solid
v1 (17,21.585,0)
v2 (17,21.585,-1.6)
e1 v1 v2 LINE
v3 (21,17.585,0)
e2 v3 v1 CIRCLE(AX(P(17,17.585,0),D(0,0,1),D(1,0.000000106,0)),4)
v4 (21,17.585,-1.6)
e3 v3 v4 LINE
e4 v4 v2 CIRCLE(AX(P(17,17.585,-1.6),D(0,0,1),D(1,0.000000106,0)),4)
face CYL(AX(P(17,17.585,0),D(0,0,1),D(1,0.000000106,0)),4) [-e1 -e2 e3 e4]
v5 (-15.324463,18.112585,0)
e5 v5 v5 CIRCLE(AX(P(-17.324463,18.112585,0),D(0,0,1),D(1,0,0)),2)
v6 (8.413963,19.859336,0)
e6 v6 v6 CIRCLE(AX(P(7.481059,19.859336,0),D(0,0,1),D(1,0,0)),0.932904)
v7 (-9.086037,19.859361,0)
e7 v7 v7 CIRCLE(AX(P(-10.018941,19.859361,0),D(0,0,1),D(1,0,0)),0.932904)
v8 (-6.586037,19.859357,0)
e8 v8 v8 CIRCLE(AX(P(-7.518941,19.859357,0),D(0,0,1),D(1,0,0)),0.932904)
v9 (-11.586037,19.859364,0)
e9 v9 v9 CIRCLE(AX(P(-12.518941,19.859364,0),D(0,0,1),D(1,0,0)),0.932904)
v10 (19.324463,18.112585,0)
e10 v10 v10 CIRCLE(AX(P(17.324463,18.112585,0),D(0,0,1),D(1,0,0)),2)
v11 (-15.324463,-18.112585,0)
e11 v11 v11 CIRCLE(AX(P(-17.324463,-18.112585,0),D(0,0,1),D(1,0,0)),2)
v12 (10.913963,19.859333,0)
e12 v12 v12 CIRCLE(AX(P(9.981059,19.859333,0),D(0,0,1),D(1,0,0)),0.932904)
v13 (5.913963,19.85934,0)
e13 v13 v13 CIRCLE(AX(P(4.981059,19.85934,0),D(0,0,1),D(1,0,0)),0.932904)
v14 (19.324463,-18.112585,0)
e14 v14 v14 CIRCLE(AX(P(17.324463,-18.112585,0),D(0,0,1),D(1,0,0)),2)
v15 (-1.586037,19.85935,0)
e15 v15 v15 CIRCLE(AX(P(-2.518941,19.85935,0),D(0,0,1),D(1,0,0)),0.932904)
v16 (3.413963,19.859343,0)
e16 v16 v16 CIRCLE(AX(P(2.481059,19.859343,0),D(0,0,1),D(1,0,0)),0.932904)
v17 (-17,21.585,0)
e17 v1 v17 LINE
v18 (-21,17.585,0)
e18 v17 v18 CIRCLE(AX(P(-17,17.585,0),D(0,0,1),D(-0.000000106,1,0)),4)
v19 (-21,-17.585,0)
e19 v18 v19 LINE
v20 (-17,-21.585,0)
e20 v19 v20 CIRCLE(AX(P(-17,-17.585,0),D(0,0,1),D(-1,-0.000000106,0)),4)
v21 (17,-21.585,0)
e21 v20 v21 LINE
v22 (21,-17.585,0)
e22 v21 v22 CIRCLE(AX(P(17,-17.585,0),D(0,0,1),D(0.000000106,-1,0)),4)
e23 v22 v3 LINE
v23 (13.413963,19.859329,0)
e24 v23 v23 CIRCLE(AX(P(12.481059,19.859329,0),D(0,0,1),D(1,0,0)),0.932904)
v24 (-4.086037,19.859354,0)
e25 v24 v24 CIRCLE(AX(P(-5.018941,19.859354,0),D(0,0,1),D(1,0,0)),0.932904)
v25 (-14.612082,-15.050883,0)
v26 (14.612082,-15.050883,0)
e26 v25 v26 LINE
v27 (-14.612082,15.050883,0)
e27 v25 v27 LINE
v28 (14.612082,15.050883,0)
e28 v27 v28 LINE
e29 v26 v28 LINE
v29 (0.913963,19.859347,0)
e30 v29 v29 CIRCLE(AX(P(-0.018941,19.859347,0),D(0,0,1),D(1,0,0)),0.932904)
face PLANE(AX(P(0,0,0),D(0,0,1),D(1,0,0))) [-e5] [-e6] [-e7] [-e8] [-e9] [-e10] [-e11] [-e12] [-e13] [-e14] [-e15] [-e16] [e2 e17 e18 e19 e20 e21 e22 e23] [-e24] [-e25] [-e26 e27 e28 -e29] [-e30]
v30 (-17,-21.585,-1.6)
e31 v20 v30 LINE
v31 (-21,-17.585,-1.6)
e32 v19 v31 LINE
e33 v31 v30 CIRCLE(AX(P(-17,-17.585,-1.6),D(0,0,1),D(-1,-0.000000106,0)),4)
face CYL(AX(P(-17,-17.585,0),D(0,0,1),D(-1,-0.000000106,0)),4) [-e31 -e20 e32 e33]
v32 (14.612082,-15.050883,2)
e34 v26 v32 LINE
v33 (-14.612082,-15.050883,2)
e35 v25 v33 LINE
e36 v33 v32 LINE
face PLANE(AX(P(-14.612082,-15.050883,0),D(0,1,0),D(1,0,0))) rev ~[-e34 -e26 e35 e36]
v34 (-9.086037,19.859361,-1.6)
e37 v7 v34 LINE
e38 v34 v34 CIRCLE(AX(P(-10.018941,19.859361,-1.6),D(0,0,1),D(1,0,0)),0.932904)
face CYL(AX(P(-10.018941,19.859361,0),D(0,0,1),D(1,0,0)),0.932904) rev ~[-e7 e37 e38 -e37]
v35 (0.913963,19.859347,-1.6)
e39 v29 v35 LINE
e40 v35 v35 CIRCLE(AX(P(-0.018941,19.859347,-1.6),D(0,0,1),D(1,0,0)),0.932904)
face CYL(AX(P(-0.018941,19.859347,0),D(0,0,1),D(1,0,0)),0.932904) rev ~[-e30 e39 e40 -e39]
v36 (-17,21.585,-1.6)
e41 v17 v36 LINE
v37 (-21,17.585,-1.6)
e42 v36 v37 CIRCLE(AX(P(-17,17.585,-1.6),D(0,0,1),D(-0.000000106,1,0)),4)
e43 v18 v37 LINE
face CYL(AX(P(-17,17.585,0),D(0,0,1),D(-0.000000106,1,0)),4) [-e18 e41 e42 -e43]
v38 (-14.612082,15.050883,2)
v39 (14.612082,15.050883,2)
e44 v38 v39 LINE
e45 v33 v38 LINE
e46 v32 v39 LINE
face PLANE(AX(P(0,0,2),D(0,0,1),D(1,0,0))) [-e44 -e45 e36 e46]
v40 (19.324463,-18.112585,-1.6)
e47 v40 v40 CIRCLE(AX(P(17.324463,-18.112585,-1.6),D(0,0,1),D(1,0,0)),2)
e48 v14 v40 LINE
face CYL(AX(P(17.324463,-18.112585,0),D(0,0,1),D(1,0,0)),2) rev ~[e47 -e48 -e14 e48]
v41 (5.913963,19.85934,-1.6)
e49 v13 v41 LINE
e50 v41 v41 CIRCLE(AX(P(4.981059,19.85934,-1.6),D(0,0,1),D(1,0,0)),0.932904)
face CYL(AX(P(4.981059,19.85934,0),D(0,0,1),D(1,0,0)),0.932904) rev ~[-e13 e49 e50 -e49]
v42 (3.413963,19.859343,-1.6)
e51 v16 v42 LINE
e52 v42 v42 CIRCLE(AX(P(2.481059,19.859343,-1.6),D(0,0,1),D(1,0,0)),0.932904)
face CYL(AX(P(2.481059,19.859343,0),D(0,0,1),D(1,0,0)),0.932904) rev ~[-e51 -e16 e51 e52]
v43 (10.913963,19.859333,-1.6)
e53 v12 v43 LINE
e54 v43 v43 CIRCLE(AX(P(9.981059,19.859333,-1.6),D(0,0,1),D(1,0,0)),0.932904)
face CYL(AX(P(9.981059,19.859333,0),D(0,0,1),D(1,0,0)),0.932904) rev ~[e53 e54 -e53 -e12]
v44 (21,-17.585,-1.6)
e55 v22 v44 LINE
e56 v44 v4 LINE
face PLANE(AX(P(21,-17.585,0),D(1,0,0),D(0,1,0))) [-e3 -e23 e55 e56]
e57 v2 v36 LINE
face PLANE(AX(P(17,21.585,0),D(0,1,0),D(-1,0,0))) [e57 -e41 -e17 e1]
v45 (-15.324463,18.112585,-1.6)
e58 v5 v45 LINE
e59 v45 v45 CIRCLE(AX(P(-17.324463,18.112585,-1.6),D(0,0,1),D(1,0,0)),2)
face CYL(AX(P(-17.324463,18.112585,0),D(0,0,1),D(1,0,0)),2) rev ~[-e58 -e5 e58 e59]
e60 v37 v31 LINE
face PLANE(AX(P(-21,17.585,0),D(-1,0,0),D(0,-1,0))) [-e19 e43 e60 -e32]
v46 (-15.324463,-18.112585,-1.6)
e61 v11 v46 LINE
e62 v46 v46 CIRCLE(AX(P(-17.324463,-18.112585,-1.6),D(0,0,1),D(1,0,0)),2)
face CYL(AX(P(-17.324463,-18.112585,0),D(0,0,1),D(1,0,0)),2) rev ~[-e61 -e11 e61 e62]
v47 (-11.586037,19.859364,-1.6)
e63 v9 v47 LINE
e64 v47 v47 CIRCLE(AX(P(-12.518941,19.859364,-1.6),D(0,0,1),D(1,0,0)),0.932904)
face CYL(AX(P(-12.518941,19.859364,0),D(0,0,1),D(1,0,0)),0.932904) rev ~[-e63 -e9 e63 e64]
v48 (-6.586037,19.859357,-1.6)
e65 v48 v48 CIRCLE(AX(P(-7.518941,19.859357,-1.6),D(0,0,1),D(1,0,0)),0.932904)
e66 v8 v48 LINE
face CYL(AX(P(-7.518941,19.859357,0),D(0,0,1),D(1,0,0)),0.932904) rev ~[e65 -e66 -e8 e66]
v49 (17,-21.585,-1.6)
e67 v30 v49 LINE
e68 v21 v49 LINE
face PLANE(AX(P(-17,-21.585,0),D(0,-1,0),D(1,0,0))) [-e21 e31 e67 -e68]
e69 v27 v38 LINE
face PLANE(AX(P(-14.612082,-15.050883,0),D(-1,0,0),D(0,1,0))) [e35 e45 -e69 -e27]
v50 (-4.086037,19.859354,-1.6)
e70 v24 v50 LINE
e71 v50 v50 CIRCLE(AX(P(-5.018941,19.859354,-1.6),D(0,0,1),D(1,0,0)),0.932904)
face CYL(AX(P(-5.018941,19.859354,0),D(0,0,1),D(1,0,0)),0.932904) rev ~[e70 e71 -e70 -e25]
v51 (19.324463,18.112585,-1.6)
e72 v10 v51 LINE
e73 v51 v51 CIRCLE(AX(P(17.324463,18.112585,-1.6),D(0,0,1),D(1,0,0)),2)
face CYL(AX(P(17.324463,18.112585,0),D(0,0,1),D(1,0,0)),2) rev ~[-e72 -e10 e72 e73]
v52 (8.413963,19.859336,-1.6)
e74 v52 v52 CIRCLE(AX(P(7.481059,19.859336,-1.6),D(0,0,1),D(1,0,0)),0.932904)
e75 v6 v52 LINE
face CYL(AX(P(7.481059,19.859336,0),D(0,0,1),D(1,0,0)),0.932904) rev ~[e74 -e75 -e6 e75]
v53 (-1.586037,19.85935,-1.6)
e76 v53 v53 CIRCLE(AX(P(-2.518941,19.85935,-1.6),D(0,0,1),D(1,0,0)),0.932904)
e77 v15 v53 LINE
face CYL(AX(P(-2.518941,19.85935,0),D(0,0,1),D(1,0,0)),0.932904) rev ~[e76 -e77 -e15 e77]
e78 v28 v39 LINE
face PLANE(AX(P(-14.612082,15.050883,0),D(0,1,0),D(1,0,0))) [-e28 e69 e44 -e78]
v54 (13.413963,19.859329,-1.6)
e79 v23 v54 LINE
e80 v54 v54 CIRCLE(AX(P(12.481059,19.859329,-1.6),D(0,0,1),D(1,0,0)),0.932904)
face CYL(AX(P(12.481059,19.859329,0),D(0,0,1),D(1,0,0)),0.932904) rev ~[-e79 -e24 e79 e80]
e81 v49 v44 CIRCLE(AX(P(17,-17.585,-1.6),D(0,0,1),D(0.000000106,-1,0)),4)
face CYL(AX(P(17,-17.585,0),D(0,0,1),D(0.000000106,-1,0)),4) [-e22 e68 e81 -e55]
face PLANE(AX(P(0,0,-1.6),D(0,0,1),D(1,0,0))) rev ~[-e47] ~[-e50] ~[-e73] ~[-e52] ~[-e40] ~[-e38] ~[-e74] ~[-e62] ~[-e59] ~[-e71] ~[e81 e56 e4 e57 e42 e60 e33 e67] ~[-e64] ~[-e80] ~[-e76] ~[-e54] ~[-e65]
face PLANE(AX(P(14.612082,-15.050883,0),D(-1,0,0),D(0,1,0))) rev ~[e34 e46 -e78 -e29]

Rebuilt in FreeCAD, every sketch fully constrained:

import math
import FreeCAD as App
import Part
import Sketcher
from FreeCAD import Vector
Q = App.Units.Quantity


def add_polygon(sketch, points):
    """Adds a closed chain of lines whose ends are joined by coincident constraints."""
    first, n = sketch.GeometryCount, len(points)
    for a, b in zip(points, points[1:] + points[:1]):
        sketch.addGeometry(Part.LineSegment(App.Vector(*a, 0), App.Vector(*b, 0)), False)
    for i in range(n):
        sketch.addConstraint(Sketcher.Constraint("Coincident", first + i, 2, first + (i + 1) % n, 1))

doc = App.newDocument("Part")
body = doc.addObject("PartDesign::Body", "Body")

# Sketch on XY plane
sketch1 = doc.addObject("Sketcher::SketchObject", "Sketch")
body.addObject(sketch1)
sketch1.AttachmentSupport = (doc.XY_Plane, [""])
sketch1.MapMode = "FlatFace"
sketch1.addGeometry([
    Part.LineSegment(Vector(17, 21.6, 0), Vector(-17, 21.6, 0)),  # 0
    Part.ArcOfCircle(Part.Circle(Vector(-17, 17.6, 0), Vector(0, 0, 1), 4), math.radians(90), math.radians(180)),  # 1
    Part.LineSegment(Vector(-21, 17.6, 0), Vector(-21, -17.6, 0)),  # 2
    Part.ArcOfCircle(Part.Circle(Vector(-17, -17.6, 0), Vector(0, 0, 1), 4), math.radians(-180), math.radians(-90)),  # 3
    Part.LineSegment(Vector(-17, -21.6, 0), Vector(17, -21.6, 0)),  # 4
    Part.ArcOfCircle(Part.Circle(Vector(17, -17.6, 0), Vector(0, 0, 1), 4), math.radians(-90), math.radians(0)),  # 5
    Part.LineSegment(Vector(21, -17.6, 0), Vector(21, 17.6, 0)),  # 6
    Part.ArcOfCircle(Part.Circle(Vector(17, 17.6, 0), Vector(0, 0, 1), 4), math.radians(0), math.radians(90)),  # 7
    Part.Circle(Vector(-17.3, -18.1, 0), Vector(0, 0, 1), 2),  # 8
    Part.Circle(Vector(17.3, -18.1, 0), Vector(0, 0, 1), 2),  # 9
    Part.Circle(Vector(-17.3, 18.1, 0), Vector(0, 0, 1), 2),  # 10
    Part.Circle(Vector(-12.5, 19.9, 0), Vector(0, 0, 1), 0.9),  # 11
    Part.Circle(Vector(-10, 19.9, 0), Vector(0, 0, 1), 0.9),  # 12
    Part.Circle(Vector(-7.5, 19.9, 0), Vector(0, 0, 1), 0.9),  # 13
    Part.Circle(Vector(-5, 19.9, 0), Vector(0, 0, 1), 0.9),  # 14
    Part.Circle(Vector(-2.5, 19.9, 0), Vector(0, 0, 1), 0.9),  # 15
    Part.Circle(Vector(0, 19.9, 0), Vector(0, 0, 1), 0.9),  # 16
    Part.Circle(Vector(2.5, 19.9, 0), Vector(0, 0, 1), 0.9),  # 17
    Part.Circle(Vector(5, 19.9, 0), Vector(0, 0, 1), 0.9),  # 18
    Part.Circle(Vector(7.5, 19.9, 0), Vector(0, 0, 1), 0.9),  # 19
    Part.Circle(Vector(10, 19.9, 0), Vector(0, 0, 1), 0.9),  # 20
    Part.Circle(Vector(12.5, 19.9, 0), Vector(0, 0, 1), 0.9),  # 21
    Part.Circle(Vector(17.3, 18.1, 0), Vector(0, 0, 1), 2),  # 22
], False)
sketch1.addConstraint([
    Sketcher.Constraint("Tangent", 0, 2, 1, 1),
    Sketcher.Constraint("Tangent", 1, 2, 2, 1),
    Sketcher.Constraint("Tangent", 2, 2, 3, 1),
    Sketcher.Constraint("Tangent", 3, 2, 4, 1),
    Sketcher.Constraint("Tangent", 4, 2, 5, 1),
    Sketcher.Constraint("Tangent", 5, 2, 6, 1),
    Sketcher.Constraint("Tangent", 6, 2, 7, 1),
    Sketcher.Constraint("Tangent", 7, 2, 0, 1),
    Sketcher.Constraint("Horizontal", 0),
    Sketcher.Constraint("Vertical", 2),
    Sketcher.Constraint("Horizontal", 4),
    Sketcher.Constraint("Vertical", 6),
    Sketcher.Constraint("Equal", 1, 3),
    Sketcher.Constraint("Equal", 3, 5),
    Sketcher.Constraint("Equal", 5, 7),
    Sketcher.Constraint("Equal", 8, 9),
    Sketcher.Constraint("Equal", 9, 10),
    Sketcher.Constraint("Equal", 11, 12),
    Sketcher.Constraint("Equal", 12, 13),
    Sketcher.Constraint("Equal", 13, 14),
    Sketcher.Constraint("Equal", 14, 15),
    Sketcher.Constraint("Equal", 15, 16),
    Sketcher.Constraint("Equal", 16, 17),
    Sketcher.Constraint("Equal", 17, 18),
    Sketcher.Constraint("Equal", 18, 19),
    Sketcher.Constraint("Equal", 19, 20),
    Sketcher.Constraint("Equal", 20, 21),
    Sketcher.Constraint("Equal", 10, 22),
    Sketcher.Constraint("Symmetric", 1, 3, 5, 3, -1, 1),
    Sketcher.Constraint("Symmetric", 9, 3, 10, 3, -1, 1),
    Sketcher.Constraint("Symmetric", 8, 3, 22, 3, -1, 1),
    Sketcher.Constraint("Symmetric", 8, 3, 9, 3, -2),
    Sketcher.Constraint("Diameter", 8, Q("4 mm")),
    Sketcher.Constraint("Radius", 1, Q("4 mm")),
    Sketcher.Constraint("DistanceX", 0, 2, 0, 1, Q("34 mm")),
    Sketcher.Constraint("DistanceX", 11, 3, 13, 3, Q("5 mm")),
    Sketcher.Constraint("DistanceX", 12, 3, 14, 3, Q("5 mm")),
    Sketcher.Constraint("DistanceX", 13, 3, 15, 3, Q("5 mm")),
    Sketcher.Constraint("DistanceX", 14, 3, 16, 3, Q("5 mm")),
    Sketcher.Constraint("DistanceX", 15, 3, 17, 3, Q("5 mm")),
    Sketcher.Constraint("DistanceX", 16, 3, 18, 3, Q("5 mm")),
    Sketcher.Constraint("DistanceX", 17, 3, 19, 3, Q("5 mm")),
    Sketcher.Constraint("DistanceX", 18, 3, 20, 3, Q("5 mm")),
    Sketcher.Constraint("DistanceX", 19, 3, 21, 3, Q("5 mm")),
    Sketcher.Constraint("DistanceY", 2, 2, 2, 1, Q("35.17 mm")),
    Sketcher.Constraint("DistanceX", 11, 3, 12, 3, Q("2.5 mm")),
    Sketcher.Constraint("Diameter", 11, Q("1.865808 mm")),
    Sketcher.Constraint("DistanceX", 11, 3, -1, 1, Q("12.518941 mm")),
    Sketcher.Constraint("DistanceY", -1, 1, 12, 3, Q("19.859361 mm")),
    Sketcher.Constraint("DistanceY", -1, 1, 15, 3, Q("19.85935 mm")),
    Sketcher.Constraint("DistanceY", -1, 1, 18, 3, Q("19.85934 mm")),
    Sketcher.Constraint("DistanceY", -1, 1, 21, 3, Q("19.859329 mm")),
    Sketcher.Constraint("DistanceY", 8, 3, 10, 3, Q("36.22517 mm")),
    Sketcher.Constraint("DistanceY", 10, 3, 11, 3, Q("1.746779 mm")),
    Sketcher.Constraint("DistanceY", 10, 3, 14, 3, Q("1.746769 mm")),
    Sketcher.Constraint("DistanceY", 22, 3, 20, 3, Q("1.746748 mm")),
    Sketcher.Constraint("DistanceY", 22, 3, 19, 3, Q("1.746751 mm")),
    Sketcher.Constraint("DistanceX", 8, 3, -1, 1, Q("17.324463 mm")),
    Sketcher.Constraint("DistanceY", -1, 1, 13, 3, Q("19.859357 mm")),
    Sketcher.Constraint("DistanceY", -1, 1, 16, 3, Q("19.859347 mm")),
    Sketcher.Constraint("DistanceY", -1, 1, 17, 3, Q("19.859343 mm")),
])
pad1 = doc.addObject("PartDesign::Pad", "Pad")
body.addObject(pad1)
pad1.Profile = sketch1
pad1.Length = 1.6
pad1.Reversed = True

# Sketch on XY plane
sketch2 = doc.addObject("Sketcher::SketchObject", "Sketch001")
body.addObject(sketch2)
sketch2.AttachmentSupport = (doc.XY_Plane, [""])
sketch2.MapMode = "FlatFace"
add_polygon(sketch2, [(-15, 15), (-15, -15), (15, -15), (15, 15)])  # lines 0-3
sketch2.addConstraint([
    Sketcher.Constraint("Vertical", 0),
    Sketcher.Constraint("Horizontal", 1),
    Sketcher.Constraint("Vertical", 2),
    Sketcher.Constraint("Horizontal", 3),
    Sketcher.Constraint("Symmetric", 0, 2, 2, 2, -1, 1),
    Sketcher.Constraint("DistanceX", 1, 1, 1, 2, Q("29.224164 mm")),
    Sketcher.Constraint("DistanceY", 0, 2, 0, 1, Q("30.101766 mm")),
])
pad2 = doc.addObject("PartDesign::Pad", "Pad001")
body.addObject(pad2)
pad2.Profile = sketch2
pad2.Length = 2

doc.recompute()
